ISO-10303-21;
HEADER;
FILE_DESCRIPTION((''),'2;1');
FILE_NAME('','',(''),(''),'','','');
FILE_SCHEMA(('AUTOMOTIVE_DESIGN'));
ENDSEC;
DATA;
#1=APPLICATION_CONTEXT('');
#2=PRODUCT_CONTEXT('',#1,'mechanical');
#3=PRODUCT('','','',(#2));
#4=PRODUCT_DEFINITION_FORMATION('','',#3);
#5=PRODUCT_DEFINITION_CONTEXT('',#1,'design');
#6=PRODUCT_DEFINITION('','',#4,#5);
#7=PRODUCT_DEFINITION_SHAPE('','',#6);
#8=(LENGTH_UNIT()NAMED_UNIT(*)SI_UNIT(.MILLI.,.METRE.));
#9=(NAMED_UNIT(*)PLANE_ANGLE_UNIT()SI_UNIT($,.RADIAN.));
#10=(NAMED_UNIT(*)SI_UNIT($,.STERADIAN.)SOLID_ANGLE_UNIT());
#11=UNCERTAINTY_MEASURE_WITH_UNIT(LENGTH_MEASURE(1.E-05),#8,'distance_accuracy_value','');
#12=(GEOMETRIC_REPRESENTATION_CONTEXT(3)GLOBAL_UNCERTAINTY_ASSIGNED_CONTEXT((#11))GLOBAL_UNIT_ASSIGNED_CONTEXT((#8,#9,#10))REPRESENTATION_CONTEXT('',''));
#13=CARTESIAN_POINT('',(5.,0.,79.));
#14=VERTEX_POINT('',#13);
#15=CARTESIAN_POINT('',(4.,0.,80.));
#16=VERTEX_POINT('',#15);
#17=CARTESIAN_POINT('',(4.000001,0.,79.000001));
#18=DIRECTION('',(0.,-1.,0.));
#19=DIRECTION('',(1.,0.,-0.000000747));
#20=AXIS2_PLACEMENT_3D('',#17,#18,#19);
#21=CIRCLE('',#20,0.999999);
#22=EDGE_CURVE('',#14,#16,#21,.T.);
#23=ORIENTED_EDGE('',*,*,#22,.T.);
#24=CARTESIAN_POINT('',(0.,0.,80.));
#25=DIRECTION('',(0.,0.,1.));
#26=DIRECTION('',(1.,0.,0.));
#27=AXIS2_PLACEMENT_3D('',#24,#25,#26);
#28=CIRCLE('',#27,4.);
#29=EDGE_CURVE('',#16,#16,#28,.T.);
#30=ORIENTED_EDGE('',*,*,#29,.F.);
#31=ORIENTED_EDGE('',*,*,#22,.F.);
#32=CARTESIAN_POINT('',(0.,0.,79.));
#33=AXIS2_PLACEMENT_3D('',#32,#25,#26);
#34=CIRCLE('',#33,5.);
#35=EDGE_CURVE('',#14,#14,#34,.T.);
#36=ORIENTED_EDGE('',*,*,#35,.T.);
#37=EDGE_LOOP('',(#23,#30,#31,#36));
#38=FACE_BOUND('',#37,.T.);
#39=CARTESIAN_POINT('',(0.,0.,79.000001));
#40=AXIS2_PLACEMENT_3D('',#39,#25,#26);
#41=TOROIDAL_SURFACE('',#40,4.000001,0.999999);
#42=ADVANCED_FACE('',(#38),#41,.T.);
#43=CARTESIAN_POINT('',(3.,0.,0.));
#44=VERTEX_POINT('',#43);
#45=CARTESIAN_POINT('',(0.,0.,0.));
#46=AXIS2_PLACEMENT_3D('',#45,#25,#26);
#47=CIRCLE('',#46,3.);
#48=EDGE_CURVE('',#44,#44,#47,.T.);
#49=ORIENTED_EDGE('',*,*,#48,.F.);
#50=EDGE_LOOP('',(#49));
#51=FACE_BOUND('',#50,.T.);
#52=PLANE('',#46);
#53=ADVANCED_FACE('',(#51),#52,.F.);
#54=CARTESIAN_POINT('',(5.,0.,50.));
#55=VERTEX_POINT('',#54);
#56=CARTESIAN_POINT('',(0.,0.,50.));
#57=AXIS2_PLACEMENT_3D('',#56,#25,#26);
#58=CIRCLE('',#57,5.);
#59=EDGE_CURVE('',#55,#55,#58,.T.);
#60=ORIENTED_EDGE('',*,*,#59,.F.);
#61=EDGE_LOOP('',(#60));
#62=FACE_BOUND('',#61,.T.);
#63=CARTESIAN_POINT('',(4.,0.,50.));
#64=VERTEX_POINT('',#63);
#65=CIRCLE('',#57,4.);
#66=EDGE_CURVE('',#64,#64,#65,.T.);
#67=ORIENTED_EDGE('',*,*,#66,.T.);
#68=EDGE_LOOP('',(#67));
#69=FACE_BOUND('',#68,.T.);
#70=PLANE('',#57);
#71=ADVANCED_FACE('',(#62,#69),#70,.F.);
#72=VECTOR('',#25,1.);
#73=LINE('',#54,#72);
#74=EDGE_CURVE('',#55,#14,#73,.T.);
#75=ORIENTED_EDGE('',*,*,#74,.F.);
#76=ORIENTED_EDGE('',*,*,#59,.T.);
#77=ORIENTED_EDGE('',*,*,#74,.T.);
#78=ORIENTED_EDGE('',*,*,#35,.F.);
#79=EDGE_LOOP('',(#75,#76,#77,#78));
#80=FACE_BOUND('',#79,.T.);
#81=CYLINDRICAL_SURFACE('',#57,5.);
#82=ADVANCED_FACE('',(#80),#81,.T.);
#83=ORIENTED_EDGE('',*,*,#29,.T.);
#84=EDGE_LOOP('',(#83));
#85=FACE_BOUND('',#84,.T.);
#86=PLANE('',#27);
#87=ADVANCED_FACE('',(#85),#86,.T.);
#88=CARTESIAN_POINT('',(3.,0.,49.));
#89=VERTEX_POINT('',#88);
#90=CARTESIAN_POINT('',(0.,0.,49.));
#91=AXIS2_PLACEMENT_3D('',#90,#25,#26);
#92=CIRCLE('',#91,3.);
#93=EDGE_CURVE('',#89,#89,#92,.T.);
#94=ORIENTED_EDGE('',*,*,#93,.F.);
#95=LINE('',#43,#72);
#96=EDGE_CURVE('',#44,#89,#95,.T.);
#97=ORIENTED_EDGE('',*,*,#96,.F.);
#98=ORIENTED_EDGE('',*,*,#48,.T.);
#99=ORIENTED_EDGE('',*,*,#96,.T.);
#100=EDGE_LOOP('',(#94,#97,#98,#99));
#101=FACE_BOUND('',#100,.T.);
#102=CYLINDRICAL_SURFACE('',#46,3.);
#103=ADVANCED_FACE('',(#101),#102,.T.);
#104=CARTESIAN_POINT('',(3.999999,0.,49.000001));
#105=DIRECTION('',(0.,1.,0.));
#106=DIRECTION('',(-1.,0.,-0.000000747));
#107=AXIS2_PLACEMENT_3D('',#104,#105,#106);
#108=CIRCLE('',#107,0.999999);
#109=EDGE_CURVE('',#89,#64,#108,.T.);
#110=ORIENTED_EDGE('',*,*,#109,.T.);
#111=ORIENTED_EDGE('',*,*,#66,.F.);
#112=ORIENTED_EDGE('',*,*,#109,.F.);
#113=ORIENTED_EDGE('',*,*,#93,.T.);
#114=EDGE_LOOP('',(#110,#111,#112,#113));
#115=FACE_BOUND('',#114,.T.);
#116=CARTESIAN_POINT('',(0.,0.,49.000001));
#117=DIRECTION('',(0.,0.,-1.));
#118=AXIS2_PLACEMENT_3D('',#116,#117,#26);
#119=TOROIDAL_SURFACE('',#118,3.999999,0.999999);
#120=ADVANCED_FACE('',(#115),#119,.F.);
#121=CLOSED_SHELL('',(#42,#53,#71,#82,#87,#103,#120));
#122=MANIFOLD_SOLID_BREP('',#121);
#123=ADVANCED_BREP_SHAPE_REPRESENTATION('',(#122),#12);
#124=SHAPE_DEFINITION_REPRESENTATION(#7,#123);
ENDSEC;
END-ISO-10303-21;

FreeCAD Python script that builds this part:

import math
import FreeCAD as App
import Part
import Sketcher
from FreeCAD import Vector
Q = App.Units.Quantity

doc = App.newDocument("Part")
body = doc.addObject("PartDesign::Body", "Body")

# Sketch on XZ plane
sketch1 = body.newObject("Sketcher::SketchObject", "Sketch")
sketch1.AttachmentSupport = (doc.getObject("XZ_Plane"), [""])
sketch1.MapMode = "FlatFace"
sketch1.addGeometry([
    Part.LineSegment(Vector(0, 80, 0), Vector(0, 0, 0)),  # 0
    Part.LineSegment(Vector(0, 0, 0), Vector(3, 0, 0)),  # 1
    Part.LineSegment(Vector(3, 0, 0), Vector(3, 49, 0)),  # 2
    Part.ArcOfCircle(Part.Circle(Vector(4, 49, 0), Vector(0, 0, 1), 1), math.radians(90), math.radians(180)),  # 3
    Part.LineSegment(Vector(4, 50, 0), Vector(5, 50, 0)),  # 4
    Part.LineSegment(Vector(5, 50, 0), Vector(5, 79, 0)),  # 5
    Part.ArcOfCircle(Part.Circle(Vector(4, 79, 0), Vector(0, 0, 1), 1), math.radians(0), math.radians(90)),  # 6
    Part.LineSegment(Vector(4, 80, 0), Vector(0, 80, 0)),  # 7
], False)
sketch1.addConstraint([
    Sketcher.Constraint("Coincident", 0, 2, 1, 1),
    Sketcher.Constraint("Coincident", 1, 2, 2, 1),
    Sketcher.Constraint("Tangent", 2, 2, 3, 2),
    Sketcher.Constraint("Tangent", 3, 1, 4, 1),
    Sketcher.Constraint("Coincident", 4, 2, 5, 1),
    Sketcher.Constraint("Tangent", 5, 2, 6, 1),
    Sketcher.Constraint("Tangent", 6, 2, 7, 1),
    Sketcher.Constraint("Coincident", 7, 2, 0, 1),
    Sketcher.Constraint("Vertical", 0),
    Sketcher.Constraint("Horizontal", 1),
    Sketcher.Constraint("Vertical", 2),
    Sketcher.Constraint("Horizontal", 4),
    Sketcher.Constraint("Vertical", 5),
    Sketcher.Constraint("Horizontal", 7),
    Sketcher.Constraint("Coincident", 0, 2, -1, 1),
    Sketcher.Constraint("Equal", 3, 6),
    Sketcher.Constraint("Vertical", 3, 3, 6, 3),
    Sketcher.Constraint("Radius", 3, Q("0.999999 mm")),
    Sketcher.Constraint("DistanceX", 1, 1, 1, 2, Q("3 mm")),
    Sketcher.Constraint("DistanceY", 0, 2, 0, 1, Q("80 mm")),
    Sketcher.Constraint("DistanceY", 2, 1, 2, 2, Q("49 mm")),
])
revolution = body.newObject("PartDesign::Revolution", "Revolution")
revolution.Profile = sketch1
revolution.ReferenceAxis = (sketch1, ["V_Axis"])
revolution.Angle = 360

doc.recompute()
